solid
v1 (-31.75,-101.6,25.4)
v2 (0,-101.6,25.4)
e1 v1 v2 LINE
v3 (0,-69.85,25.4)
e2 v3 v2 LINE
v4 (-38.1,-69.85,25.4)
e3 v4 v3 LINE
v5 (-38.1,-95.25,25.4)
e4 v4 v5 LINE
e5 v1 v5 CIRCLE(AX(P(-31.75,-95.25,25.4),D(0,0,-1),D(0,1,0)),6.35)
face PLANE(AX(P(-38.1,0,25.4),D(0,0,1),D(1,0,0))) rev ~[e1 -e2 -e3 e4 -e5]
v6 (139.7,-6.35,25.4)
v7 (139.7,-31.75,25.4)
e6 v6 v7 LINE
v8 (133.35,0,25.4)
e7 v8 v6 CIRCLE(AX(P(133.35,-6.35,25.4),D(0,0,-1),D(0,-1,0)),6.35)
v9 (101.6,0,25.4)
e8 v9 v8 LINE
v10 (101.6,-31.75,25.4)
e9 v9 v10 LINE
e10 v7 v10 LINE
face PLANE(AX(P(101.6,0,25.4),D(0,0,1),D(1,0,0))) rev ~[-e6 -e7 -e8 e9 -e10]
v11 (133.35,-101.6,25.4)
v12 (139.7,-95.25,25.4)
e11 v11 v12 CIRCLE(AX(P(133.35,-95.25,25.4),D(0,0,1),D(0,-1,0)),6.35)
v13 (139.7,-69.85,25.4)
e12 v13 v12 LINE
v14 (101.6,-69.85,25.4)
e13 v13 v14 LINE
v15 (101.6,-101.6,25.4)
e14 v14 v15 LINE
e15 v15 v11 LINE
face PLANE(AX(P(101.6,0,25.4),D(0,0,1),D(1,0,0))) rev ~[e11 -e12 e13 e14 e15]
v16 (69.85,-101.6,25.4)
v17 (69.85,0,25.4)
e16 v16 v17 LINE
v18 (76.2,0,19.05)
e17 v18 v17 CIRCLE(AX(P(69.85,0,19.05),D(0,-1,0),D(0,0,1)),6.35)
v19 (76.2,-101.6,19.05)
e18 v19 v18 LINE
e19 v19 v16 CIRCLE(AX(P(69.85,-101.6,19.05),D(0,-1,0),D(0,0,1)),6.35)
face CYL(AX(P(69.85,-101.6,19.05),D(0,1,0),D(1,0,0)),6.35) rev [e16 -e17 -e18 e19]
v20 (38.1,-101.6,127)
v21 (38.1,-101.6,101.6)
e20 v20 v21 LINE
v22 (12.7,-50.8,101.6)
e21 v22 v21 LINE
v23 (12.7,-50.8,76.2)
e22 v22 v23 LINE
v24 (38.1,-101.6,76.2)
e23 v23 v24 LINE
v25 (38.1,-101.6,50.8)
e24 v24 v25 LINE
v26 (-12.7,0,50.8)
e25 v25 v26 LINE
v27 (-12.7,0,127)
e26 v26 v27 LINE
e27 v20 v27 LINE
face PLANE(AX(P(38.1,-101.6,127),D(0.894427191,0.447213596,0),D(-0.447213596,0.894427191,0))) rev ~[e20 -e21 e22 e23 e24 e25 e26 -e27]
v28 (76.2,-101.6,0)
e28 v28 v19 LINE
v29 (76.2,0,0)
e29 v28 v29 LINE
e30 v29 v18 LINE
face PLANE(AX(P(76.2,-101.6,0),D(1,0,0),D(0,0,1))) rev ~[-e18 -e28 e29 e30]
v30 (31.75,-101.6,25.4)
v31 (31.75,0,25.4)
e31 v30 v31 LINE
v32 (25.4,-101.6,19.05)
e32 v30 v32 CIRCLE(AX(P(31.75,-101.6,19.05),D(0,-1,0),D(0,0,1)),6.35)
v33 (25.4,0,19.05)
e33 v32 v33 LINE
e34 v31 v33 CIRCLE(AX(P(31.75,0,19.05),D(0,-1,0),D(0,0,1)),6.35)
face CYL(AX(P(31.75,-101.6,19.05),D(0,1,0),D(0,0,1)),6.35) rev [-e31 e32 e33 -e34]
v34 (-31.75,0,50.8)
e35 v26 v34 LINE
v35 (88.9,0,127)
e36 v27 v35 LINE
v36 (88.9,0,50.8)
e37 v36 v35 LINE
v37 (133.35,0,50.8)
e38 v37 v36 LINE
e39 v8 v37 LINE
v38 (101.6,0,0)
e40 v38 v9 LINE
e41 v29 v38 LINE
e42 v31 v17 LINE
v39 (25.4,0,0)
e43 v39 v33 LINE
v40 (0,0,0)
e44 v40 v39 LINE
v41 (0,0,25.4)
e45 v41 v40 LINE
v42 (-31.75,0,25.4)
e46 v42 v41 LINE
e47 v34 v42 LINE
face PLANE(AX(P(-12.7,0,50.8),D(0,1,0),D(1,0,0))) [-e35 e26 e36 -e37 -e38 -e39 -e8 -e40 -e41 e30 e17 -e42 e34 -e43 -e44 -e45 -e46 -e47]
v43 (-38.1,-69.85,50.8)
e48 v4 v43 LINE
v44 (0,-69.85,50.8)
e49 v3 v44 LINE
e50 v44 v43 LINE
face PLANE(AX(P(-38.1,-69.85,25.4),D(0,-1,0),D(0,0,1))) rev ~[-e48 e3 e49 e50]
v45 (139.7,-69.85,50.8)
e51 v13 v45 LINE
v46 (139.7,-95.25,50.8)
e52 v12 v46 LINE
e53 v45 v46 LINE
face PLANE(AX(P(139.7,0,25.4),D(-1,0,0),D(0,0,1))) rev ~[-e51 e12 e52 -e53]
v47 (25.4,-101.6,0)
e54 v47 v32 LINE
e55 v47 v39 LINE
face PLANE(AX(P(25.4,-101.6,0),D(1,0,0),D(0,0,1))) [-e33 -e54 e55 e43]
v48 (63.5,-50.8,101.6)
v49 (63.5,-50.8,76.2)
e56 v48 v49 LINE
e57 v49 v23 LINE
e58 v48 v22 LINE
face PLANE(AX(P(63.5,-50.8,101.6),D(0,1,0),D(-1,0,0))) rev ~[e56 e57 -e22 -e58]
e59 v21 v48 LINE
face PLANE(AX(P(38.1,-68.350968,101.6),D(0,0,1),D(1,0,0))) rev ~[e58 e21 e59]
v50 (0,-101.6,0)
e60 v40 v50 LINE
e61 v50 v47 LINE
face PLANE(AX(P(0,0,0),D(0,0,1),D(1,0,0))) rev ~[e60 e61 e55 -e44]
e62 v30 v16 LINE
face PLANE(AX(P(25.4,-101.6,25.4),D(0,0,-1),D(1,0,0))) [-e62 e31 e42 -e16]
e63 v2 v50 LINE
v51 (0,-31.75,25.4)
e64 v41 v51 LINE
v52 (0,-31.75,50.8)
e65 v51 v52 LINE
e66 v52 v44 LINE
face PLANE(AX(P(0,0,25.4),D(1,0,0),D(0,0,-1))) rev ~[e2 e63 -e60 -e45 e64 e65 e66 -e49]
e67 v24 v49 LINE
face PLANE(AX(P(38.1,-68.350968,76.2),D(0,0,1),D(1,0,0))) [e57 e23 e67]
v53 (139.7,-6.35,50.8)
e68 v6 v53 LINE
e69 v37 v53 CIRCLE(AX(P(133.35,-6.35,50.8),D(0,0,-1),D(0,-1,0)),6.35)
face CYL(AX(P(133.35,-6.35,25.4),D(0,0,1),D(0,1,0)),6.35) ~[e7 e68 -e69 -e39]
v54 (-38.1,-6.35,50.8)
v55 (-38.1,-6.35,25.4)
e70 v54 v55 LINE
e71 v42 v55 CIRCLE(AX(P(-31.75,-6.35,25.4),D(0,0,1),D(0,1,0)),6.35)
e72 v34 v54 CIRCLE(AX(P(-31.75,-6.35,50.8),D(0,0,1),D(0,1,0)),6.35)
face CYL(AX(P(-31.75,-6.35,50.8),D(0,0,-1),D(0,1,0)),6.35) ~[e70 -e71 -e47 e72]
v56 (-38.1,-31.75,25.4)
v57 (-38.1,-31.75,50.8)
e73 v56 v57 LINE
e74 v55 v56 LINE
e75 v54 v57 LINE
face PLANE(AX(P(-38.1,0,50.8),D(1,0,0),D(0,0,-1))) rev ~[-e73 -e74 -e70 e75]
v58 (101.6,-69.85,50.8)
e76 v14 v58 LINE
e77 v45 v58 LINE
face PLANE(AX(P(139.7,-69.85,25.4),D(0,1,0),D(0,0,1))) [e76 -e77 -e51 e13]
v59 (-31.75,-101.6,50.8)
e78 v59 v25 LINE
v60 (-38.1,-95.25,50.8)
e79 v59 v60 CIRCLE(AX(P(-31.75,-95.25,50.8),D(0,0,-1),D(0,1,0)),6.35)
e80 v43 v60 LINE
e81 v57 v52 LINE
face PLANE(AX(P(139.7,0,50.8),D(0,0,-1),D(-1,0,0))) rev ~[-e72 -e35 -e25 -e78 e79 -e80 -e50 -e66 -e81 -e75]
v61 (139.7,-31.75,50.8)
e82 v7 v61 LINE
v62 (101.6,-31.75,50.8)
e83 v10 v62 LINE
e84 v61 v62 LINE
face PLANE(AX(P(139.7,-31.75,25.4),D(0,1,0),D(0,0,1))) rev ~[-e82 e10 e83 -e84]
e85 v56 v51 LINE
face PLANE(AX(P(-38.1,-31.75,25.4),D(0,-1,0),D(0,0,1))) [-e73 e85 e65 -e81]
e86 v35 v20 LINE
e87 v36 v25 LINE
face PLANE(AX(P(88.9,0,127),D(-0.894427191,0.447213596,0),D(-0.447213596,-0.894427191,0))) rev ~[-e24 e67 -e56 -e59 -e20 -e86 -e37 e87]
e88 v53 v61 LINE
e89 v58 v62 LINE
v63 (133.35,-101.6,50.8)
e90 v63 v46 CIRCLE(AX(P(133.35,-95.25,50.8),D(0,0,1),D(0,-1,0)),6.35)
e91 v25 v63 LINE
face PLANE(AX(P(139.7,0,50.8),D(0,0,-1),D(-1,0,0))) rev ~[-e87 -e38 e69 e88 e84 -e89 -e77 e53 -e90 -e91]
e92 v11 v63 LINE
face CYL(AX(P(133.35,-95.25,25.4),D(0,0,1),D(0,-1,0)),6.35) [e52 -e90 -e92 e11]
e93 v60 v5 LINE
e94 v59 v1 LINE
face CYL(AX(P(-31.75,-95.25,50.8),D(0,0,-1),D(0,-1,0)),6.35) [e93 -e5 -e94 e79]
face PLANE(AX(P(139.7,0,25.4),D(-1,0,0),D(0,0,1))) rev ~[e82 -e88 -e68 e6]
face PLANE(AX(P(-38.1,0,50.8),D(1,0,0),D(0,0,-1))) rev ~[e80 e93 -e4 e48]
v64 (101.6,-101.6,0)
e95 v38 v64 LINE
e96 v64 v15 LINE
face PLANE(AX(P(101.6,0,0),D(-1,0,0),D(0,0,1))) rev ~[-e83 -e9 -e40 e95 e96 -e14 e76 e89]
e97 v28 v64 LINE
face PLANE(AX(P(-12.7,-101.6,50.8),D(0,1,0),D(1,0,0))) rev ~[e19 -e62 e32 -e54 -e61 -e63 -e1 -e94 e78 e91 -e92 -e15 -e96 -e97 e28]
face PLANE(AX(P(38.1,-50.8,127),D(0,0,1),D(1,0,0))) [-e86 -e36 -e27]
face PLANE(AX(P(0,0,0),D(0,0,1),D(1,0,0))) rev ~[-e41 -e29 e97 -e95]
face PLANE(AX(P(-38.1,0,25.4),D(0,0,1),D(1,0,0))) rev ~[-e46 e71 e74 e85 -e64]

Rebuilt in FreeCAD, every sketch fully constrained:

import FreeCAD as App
import Part
import Sketcher
from FreeCAD import Vector
Q = App.Units.Quantity


def edges_at(feature, points):
    """Names of the edges that pass closest to the given points."""
    edges = feature.Shape.Edges
    near = lambda p: min(range(len(edges)), key=lambda i: edges[i].distToShape(Part.Vertex(*p))[0])
    return sorted({f"Edge{near(p) + 1}" for p in points})


def add_polygon(sketch, points):
    """Adds a closed chain of lines whose ends are joined by coincident constraints."""
    first, n = sketch.GeometryCount, len(points)
    for a, b in zip(points, points[1:] + points[:1]):
        sketch.addGeometry(Part.LineSegment(App.Vector(*a, 0), App.Vector(*b, 0)), False)
    for i in range(n):
        sketch.addConstraint(Sketcher.Constraint("Coincident", first + i, 2, first + (i + 1) % n, 1))

doc = App.newDocument("Part")
params = doc.addObject("Spreadsheet::Sheet", "Params")
for row, (alias, value) in enumerate([
    ("sketch1_width", "4 in"),
    ("sketch1_width2", "7 in"),
    ("sketch1_height", "1 in"),
    ("pad1_length", "4 in"),
    ("sketch2_height", "1 in"),
    ("sketch2_width", "1.5 in"),
    ("pocket1_length", "1.5 in"),
    ("sketch3_height", "1 in"),
    ("sketch3_width", "1.5 in"),
    ("pocket2_length", "1.5 in"),
    ("fillet_radius", "0.25 in"),
    ("sketch4_width", "2 in"),
    ("sketch4_height", "1 in"),
    ("fillet2_radius", "0.25 in"),
    ("sketch5_width", "4 in"),
    ("pad2_length", "3 in"),
    ("sketch6_width", "2 in"),
    ("sketch6_height", "4 in"),
    ("pocket4_length", "3 in"),
    ("sketch7_width", "2 in"),
    ("pocket5_length", "1 in"),
], start=1):
    params.set(f"A{row}", alias)
    params.set(f"B{row}", "=" + value)
    params.setAlias(f"B{row}", alias)

body = doc.addObject("PartDesign::Body", "Body")

# Sketch on XZ plane
sketch1 = body.newObject("Sketcher::SketchObject", "Sketch")
sketch1.AttachmentSupport = (doc.getObject("XZ_Plane"), [""])
sketch1.MapMode = "FlatFace"
add_polygon(sketch1, [(0, 25.4), (0, 0), (101.6, 0), (101.6, 25.4), (139.7, 25.4), (139.7, 50.8), (-38.1, 50.8), (-38.1, 25.4)])  # lines 0-7
sketch1.addConstraint([
    Sketcher.Constraint("Vertical", 0),
    Sketcher.Constraint("Horizontal", 1),
    Sketcher.Constraint("Vertical", 2),
    Sketcher.Constraint("Horizontal", 3),
    Sketcher.Constraint("Vertical", 4),
    Sketcher.Constraint("Horizontal", 5),
    Sketcher.Constraint("Vertical", 6),
    Sketcher.Constraint("Horizontal", 7),
    Sketcher.Constraint("Coincident", 0, 2, -1, 1),
    Sketcher.Constraint("Horizontal", 3, 2, 6, 2),
    Sketcher.Constraint("Equal", 3, 7),
    Sketcher.Constraint("Equal", 2, 4),
    Sketcher.Constraint("DistanceX", 1, 1, 1, 2, Q("4 in")),
    Sketcher.Constraint("DistanceX", 5, 2, 5, 1, Q("7 in")),
    Sketcher.Constraint("DistanceY", 0, 2, 0, 1, Q("1 in")),
])
sketch1.setExpression("Constraints[20]", "Params.sketch1_width")
sketch1.setExpression("Constraints[21]", "Params.sketch1_width2")
sketch1.setExpression("Constraints[22]", "Params.sketch1_height")
pad1 = body.newObject("PartDesign::Pad", "Pad")
pad1.Profile = sketch1
pad1.setExpression("Length", "Params.pad1_length")

# Sketch on YZ plane
sketch2 = body.newObject("Sketcher::SketchObject", "Sketch001")
sketch2.AttachmentSupport = (doc.getObject("YZ_Plane"), [""])
sketch2.MapMode = "FlatFace"
sketch2.AttachmentOffset = App.Placement(Vector(0, 0, 5.5 * 25.4), App.Rotation())
add_polygon(sketch2, [(-69.85, 50.8), (-69.85, 25.4), (-31.75, 25.4), (-31.75, 50.8)])  # lines 0-3
sketch2.addConstraint([
    Sketcher.Constraint("Vertical", 0),
    Sketcher.Constraint("Horizontal", 1),
    Sketcher.Constraint("Vertical", 2),
    Sketcher.Constraint("Horizontal", 3),
    Sketcher.Constraint("DistanceY", 0, 2, 0, 1, Q("1 in")),
    Sketcher.Constraint("DistanceX", 1, 1, 1, 2, Q("1.5 in")),
    Sketcher.Constraint("DistanceY", -1, 1, 0, 2, Q("1 in")),
    Sketcher.Constraint("DistanceX", 0, 2, -1, 1, Q("2.75 in")),
])
sketch2.setExpression("Constraints[8]", "Params.sketch2_height")
sketch2.setExpression("Constraints[9]", "Params.sketch2_width")
pocket1 = body.newObject("PartDesign::Pocket", "Pocket")
pocket1.Profile = sketch2
pocket1.setExpression("Length", "Params.pocket1_length")

# Sketch on YZ plane
sketch3 = body.newObject("Sketcher::SketchObject", "Sketch002")
sketch3.AttachmentSupport = (doc.getObject("YZ_Plane"), [""])
sketch3.MapMode = "FlatFace"
sketch3.AttachmentOffset = App.Placement(Vector(0, 0, -1.5 * 25.4), App.Rotation())
add_polygon(sketch3, [(-31.75, 50.8), (-31.75, 25.4), (-69.85, 25.4), (-69.85, 50.8)])  # lines 0-3
sketch3.addConstraint([
    Sketcher.Constraint("Vertical", 0),
    Sketcher.Constraint("Horizontal", 1),
    Sketcher.Constraint("Vertical", 2),
    Sketcher.Constraint("Horizontal", 3),
    Sketcher.Constraint("DistanceY", 0, 2, 0, 1, Q("1 in")),
    Sketcher.Constraint("DistanceX", 1, 2, 1, 1, Q("1.5 in")),
    Sketcher.Constraint("DistanceY", -1, 1, 0, 2, Q("1 in")),
    Sketcher.Constraint("DistanceX", 0, 2, -1, 1, Q("1.25 in")),
])
sketch3.setExpression("Constraints[8]", "Params.sketch3_height")
sketch3.setExpression("Constraints[9]", "Params.sketch3_width")
pocket2 = body.newObject("PartDesign::Pocket", "Pocket001")
pocket2.Profile = sketch3
pocket2.setExpression("Length", "Params.pocket2_length")
pocket2.Reversed = True
doc.recompute()

fillet = body.newObject("PartDesign::Fillet", "Fillet")
fillet.Base = (pocket2, edges_at(pocket2, [
    (139.7, -101.6, 38.1),
    (139.7, 0, 38.1),
    (-38.1, -101.6, 38.1),
    (-38.1, 0, 38.1),
]))
fillet.setExpression("Radius", "Params.fillet_radius")

# Sketch on XZ plane
sketch4 = body.newObject("Sketcher::SketchObject", "Sketch003")
sketch4.AttachmentSupport = (doc.getObject("XZ_Plane"), [""])
sketch4.MapMode = "FlatFace"
sketch4.AttachmentOffset = App.Placement(Vector(0, 0, 4 * 25.4), App.Rotation())
add_polygon(sketch4, [(25.4, 25.4), (25.4, 0), (76.2, 0), (76.2, 25.4)])  # lines 0-3
sketch4.addConstraint([
    Sketcher.Constraint("Vertical", 0),
    Sketcher.Constraint("Horizontal", 1),
    Sketcher.Constraint("Vertical", 2),
    Sketcher.Constraint("Horizontal", 3),
    Sketcher.Constraint("PointOnObject", 0, 2, -1),
    Sketcher.Constraint("DistanceX", 1, 1, 1, 2, Q("2 in")),
    Sketcher.Constraint("DistanceY", 0, 2, 0, 1, Q("1 in")),
    Sketcher.Constraint("DistanceX", -1, 1, 0, 2, Q("1 in")),
])
sketch4.setExpression("Constraints[9]", "Params.sketch4_width")
sketch4.setExpression("Constraints[10]", "Params.sketch4_height")
pocket3 = body.newObject("PartDesign::Pocket", "Pocket002")
pocket3.Profile = sketch4
pocket3.Type = "ThroughAll"
doc.recompute()

fillet2 = body.newObject("PartDesign::Fillet", "Fillet001")
fillet2.Base = (pocket3, edges_at(pocket3, [(25.4, -50.8, 25.4), (76.2, -50.8, 25.4)]))
fillet2.setExpression("Radius", "Params.fillet2_radius")

# Sketch on XY plane
sketch5 = body.newObject("Sketcher::SketchObject", "Sketch004")
sketch5.AttachmentSupport = (doc.getObject("XY_Plane"), [""])
sketch5.MapMode = "FlatFace"
sketch5.AttachmentOffset = App.Placement(Vector(0, 0, 2 * 25.4), App.Rotation())
add_polygon(sketch5, [(-12.7, 0), (-12.7, -101.6), (88.9, -101.6), (88.9, 0)])  # lines 0-3
sketch5.addConstraint([
    Sketcher.Constraint("Vertical", 0),
    Sketcher.Constraint("Horizontal", 1),
    Sketcher.Constraint("Vertical", 2),
    Sketcher.Constraint("Horizontal", 3),
    Sketcher.Constraint("PointOnObject", 2, 2, -1),
    Sketcher.Constraint("Equal", 3, 0),
    Sketcher.Constraint("DistanceX", 1, 1, 1, 2, Q("4 in")),
    Sketcher.Constraint("DistanceX", 0, 2, -1, 1, Q("0.5 in")),
])
sketch5.setExpression("Constraints[10]", "Params.sketch5_width")
pad2 = body.newObject("PartDesign::Pad", "Pad001")
pad2.Profile = sketch5
pad2.setExpression("Length", "Params.pad2_length")

# Sketch on XY plane
sketch6 = body.newObject("Sketcher::SketchObject", "Sketch005")
sketch6.AttachmentSupport = (doc.getObject("XY_Plane"), [""])
sketch6.MapMode = "FlatFace"
sketch6.AttachmentOffset = App.Placement(Vector(0, 0, 5 * 25.4), App.Rotation())
add_polygon(sketch6, [(88.9, 0), (38.1, -101.6), (88.9, -101.6)])  # lines 0-2
add_polygon(sketch6, [(38.1, -101.6), (-12.7, 0), (-12.7, -101.6)])  # lines 3-5
sketch6.addConstraint([
    Sketcher.Constraint("Horizontal", 1),
    Sketcher.Constraint("Vertical", 2),
    Sketcher.Constraint("Vertical", 4),
    Sketcher.Constraint("Horizontal", 5),
    Sketcher.Constraint("Coincident", 5, 2, 0, 2),
    Sketcher.Constraint("PointOnObject", 2, 2, -1),
    Sketcher.Constraint("PointOnObject", 3, 2, -1),
    Sketcher.Constraint("Equal", 1, 5),
    Sketcher.Constraint("DistanceX", 1, 1, 1, 2, Q("2 in")),
    Sketcher.Constraint("DistanceY", 2, 1, 2, 2, Q("4 in")),
    Sketcher.Constraint("DistanceX", -1, 1, 0, 2, Q("1.5 in")),
])
sketch6.setExpression("Constraints[14]", "Params.sketch6_width")
sketch6.setExpression("Constraints[15]", "Params.sketch6_height")
pocket4 = body.newObject("PartDesign::Pocket", "Pocket003")
pocket4.Profile = sketch6
pocket4.setExpression("Length", "Params.pocket4_length")

# Sketch on XY plane
sketch7 = body.newObject("Sketcher::SketchObject", "Sketch006")
sketch7.AttachmentSupport = (doc.getObject("XY_Plane"), [""])
sketch7.MapMode = "FlatFace"
sketch7.AttachmentOffset = App.Placement(Vector(0, 0, 4 * 25.4), App.Rotation())
add_polygon(sketch7, [(63.5, -50.8), (12.7, -50.8), (38.1, -101.6)])  # lines 0-2
sketch7.addConstraint([
    Sketcher.Constraint("Horizontal", 0),
    Sketcher.Constraint("Equal", 1, 2),
    Sketcher.Constraint("DistanceX", 0, 2, 0, 1, Q("2 in")),
    Sketcher.Constraint("DistanceY", 0, 2, -1, 1, Q("2 in")),
    Sketcher.Constraint("DistanceY", 1, 2, -1, 1, Q("4 in")),
    Sketcher.Constraint("DistanceX", -1, 1, 0, 2, Q("0.5 in")),
])
sketch7.setExpression("Constraints[5]", "Params.sketch7_width")
pocket5 = body.newObject("PartDesign::Pocket", "Pocket004")
pocket5.Profile = sketch7
pocket5.setExpression("Length", "Params.pocket5_length")

doc.recompute()
